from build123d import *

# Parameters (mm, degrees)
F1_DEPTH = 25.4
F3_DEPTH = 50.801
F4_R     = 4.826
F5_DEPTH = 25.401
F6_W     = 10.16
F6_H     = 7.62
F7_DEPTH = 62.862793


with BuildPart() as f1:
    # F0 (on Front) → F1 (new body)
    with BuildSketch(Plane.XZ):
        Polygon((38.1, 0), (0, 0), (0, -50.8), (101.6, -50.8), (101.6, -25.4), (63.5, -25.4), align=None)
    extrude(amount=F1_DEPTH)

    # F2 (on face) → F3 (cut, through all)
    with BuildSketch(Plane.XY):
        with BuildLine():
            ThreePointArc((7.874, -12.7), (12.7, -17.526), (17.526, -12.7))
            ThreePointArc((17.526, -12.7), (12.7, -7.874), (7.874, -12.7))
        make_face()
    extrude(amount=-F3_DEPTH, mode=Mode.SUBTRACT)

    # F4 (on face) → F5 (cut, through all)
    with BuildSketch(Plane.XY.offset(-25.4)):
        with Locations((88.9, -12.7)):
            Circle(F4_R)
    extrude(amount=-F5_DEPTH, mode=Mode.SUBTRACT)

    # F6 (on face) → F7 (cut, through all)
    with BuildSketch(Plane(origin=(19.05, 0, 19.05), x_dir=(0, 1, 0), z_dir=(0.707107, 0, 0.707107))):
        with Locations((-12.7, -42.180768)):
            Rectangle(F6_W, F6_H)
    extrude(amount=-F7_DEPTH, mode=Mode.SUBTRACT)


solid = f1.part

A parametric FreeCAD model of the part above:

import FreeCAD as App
import Part
import Sketcher
Q = App.Units.Quantity


def add_polygon(sketch, points):
    """Adds a closed chain of lines whose ends are joined by coincident constraints."""
    first, n = sketch.GeometryCount, len(points)
    for a, b in zip(points, points[1:] + points[:1]):
        sketch.addGeometry(Part.LineSegment(App.Vector(*a, 0), App.Vector(*b, 0)), False)
    for i in range(n):
        sketch.addConstraint(Sketcher.Constraint("Coincident", first + i, 2, first + (i + 1) % n, 1))

doc = App.newDocument("Part")
params = doc.addObject("Spreadsheet::Sheet", "Params")
for row, (alias, value) in enumerate([
    ("sketch1_width", "4 in"),
    ("sketch1_height", "2 in"),
    ("sketch1_height2", "1 in"),
    ("sketch1_width2", "1.5 in"),
    ("pad1_length", "1 in"),
    ("sketch2_diameter", "0.38 in"),
    ("sketch3_diameter", "0.38 in"),
    ("sketch4_width", "0.4 in"),
    ("sketch4_height", "0.3 in"),
], start=1):
    params.set(f"A{row}", alias)
    params.set(f"B{row}", "=" + value)
    params.setAlias(f"B{row}", alias)

body = doc.addObject("PartDesign::Body", "Body")

# Sketch on XZ plane
sketch1 = body.newObject("Sketcher::SketchObject", "Sketch")
sketch1.AttachmentSupport = (doc.getObject("XZ_Plane"), [""])
sketch1.MapMode = "FlatFace"
add_polygon(sketch1, [(38, 0), (0, 0), (0, -51), (102, -51), (102, -25), (64, -25)])  # lines 0-5
sketch1.addConstraint([
    Sketcher.Constraint("Horizontal", 0),
    Sketcher.Constraint("Vertical", 1),
    Sketcher.Constraint("Horizontal", 2),
    Sketcher.Constraint("Vertical", 3),
    Sketcher.Constraint("Horizontal", 4),
    Sketcher.Constraint("Coincident", 0, 2, -1, 1),
    Sketcher.Constraint("Equal", 0, 4),
    Sketcher.Constraint("DistanceX", 2, 1, 2, 2, Q("4 in")),
    Sketcher.Constraint("DistanceY", 1, 2, 1, 1, Q("2 in")),
    Sketcher.Constraint("DistanceY", 3, 1, 3, 2, Q("1 in")),
    Sketcher.Constraint("DistanceX", 0, 2, 0, 1, Q("1.5 in")),
])
sketch1.setExpression("Constraints[13]", "Params.sketch1_width")
sketch1.setExpression("Constraints[14]", "Params.sketch1_height")
sketch1.setExpression("Constraints[15]", "Params.sketch1_height2")
sketch1.setExpression("Constraints[16]", "Params.sketch1_width2")
pad1 = body.newObject("PartDesign::Pad", "Pad")
pad1.Profile = sketch1
pad1.setExpression("Length", "Params.pad1_length")

# Sketch on XY plane
sketch2 = body.newObject("Sketcher::SketchObject", "Sketch001")
sketch2.AttachmentSupport = (doc.getObject("XY_Plane"), [""])
sketch2.MapMode = "FlatFace"
sketch2.addGeometry(Part.Circle(App.Vector(12.7, -12.7, 0), App.Vector(0, 0, 1), 4.8), False)
sketch2.addConstraint([
    Sketcher.Constraint("Diameter", 0, Q("0.38 in")),
    Sketcher.Constraint("DistanceX", -1, 1, 0, 3, Q("0.5 in")),
    Sketcher.Constraint("DistanceY", 0, 3, -1, 1, Q("0.5 in")),
])
sketch2.setExpression("Constraints[0]", "Params.sketch2_diameter")
pocket1 = body.newObject("PartDesign::Pocket", "Pocket")
pocket1.Profile = sketch2
pocket1.Type = "ThroughAll"

# Sketch on XY plane
sketch3 = body.newObject("Sketcher::SketchObject", "Sketch002")
sketch3.AttachmentSupport = (doc.getObject("XY_Plane"), [""])
sketch3.MapMode = "FlatFace"
sketch3.AttachmentOffset = App.Placement(App.Vector(0, 0, -1 * 25.4), App.Rotation())
sketch3.addGeometry(Part.Circle(App.Vector(88.9, -12.7, 0), App.Vector(0, 0, 1), 4.8), False)
sketch3.addConstraint([
    Sketcher.Constraint("Diameter", 0, Q("0.38 in")),
    Sketcher.Constraint("DistanceX", -1, 1, 0, 3, Q("3.5 in")),
    Sketcher.Constraint("DistanceY", 0, 3, -1, 1, Q("0.5 in")),
])
sketch3.setExpression("Constraints[0]", "Params.sketch3_diameter")
pocket2 = body.newObject("PartDesign::Pocket", "Pocket001")
pocket2.Profile = sketch3
pocket2.Type = "ThroughAll"

# Sketch on an angled plane
sketch4 = body.newObject("Sketcher::SketchObject", "Sketch003")
sketch4.Placement = App.Placement(App.Vector(19.05, 0, 19.05), App.Rotation(App.Vector(0, 1, 0), App.Vector(-0.707106781, 0, 0.707106781), App.Vector(0.707106781, 0, 0.707106781), "ZXY"))
add_polygon(sketch4, [(-18, -38), (-18, -46), (-8, -46), (-8, -38)])  # lines 0-3
sketch4.addConstraint([
    Sketcher.Constraint("Vertical", 0),
    Sketcher.Constraint("Horizontal", 1),
    Sketcher.Constraint("Vertical", 2),
    Sketcher.Constraint("Horizontal", 3),
    Sketcher.Constraint("DistanceX", 1, 1, 1, 2, Q("0.4 in")),
    Sketcher.Constraint("DistanceY", 0, 2, 0, 1, Q("0.3 in")),
    Sketcher.Constraint("DistanceX", 0, 2, -1, 1, Q("0.7 in")),
    Sketcher.Constraint("DistanceY", 0, 2, -1, 1, 45.990768),
])
sketch4.setExpression("Constraints[8]", "Params.sketch4_width")
sketch4.setExpression("Constraints[9]", "Params.sketch4_height")
pocket3 = body.newObject("PartDesign::Pocket", "Pocket002")
pocket3.Profile = sketch4
pocket3.Type = "ThroughAll"

doc.recompute()
